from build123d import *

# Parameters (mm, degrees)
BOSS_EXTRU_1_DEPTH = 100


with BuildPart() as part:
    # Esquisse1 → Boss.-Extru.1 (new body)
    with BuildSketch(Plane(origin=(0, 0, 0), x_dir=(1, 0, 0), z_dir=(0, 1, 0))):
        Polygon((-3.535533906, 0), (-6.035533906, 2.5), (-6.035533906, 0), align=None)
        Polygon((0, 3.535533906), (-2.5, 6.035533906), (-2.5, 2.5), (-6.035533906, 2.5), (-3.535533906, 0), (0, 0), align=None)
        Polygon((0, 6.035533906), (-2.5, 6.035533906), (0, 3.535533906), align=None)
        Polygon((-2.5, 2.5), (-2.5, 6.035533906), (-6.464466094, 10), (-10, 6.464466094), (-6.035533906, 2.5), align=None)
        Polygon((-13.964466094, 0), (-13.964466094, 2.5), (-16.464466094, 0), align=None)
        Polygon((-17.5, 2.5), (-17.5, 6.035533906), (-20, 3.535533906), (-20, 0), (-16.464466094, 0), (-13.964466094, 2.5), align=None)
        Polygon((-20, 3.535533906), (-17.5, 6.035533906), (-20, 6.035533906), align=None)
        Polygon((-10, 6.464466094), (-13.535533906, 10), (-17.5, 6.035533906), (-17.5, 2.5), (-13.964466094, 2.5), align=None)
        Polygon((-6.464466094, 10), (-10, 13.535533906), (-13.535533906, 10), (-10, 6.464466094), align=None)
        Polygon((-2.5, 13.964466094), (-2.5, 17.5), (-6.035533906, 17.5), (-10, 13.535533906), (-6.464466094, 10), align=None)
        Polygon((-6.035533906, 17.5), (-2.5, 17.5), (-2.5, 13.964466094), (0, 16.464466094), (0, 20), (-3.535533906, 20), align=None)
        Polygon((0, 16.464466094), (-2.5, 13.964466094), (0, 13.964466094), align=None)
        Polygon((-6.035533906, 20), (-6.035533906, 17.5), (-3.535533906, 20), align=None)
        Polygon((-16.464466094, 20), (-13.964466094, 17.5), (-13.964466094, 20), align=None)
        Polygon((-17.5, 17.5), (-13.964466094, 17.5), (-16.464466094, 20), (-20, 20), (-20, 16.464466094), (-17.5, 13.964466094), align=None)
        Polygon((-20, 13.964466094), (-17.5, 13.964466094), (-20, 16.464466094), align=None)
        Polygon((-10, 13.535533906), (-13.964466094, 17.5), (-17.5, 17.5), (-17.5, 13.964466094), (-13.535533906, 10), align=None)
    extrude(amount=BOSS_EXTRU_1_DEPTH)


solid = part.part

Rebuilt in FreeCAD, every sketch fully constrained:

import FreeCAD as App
import Part
import Sketcher

V = App.Vector


def add_polygon(sketch, points):
    """Adds a closed chain of lines whose ends are joined by coincident constraints."""
    first, n = sketch.GeometryCount, len(points)
    for a, b in zip(points, points[1:] + points[:1]):
        sketch.addGeometry(Part.LineSegment(App.Vector(*a, 0), App.Vector(*b, 0)), False)
    for i in range(n):
        sketch.addConstraint(Sketcher.Constraint("Coincident", first + i, 2, first + (i + 1) % n, 1))

doc = App.newDocument("Part")
body = doc.addObject("PartDesign::Body", "Body")

sketch1 = body.newObject("Sketcher::SketchObject", "Sketch")
sketch1.AttachmentSupport = (doc.getObject("XZ_Plane"), [""])
sketch1.MapMode = "FlatFace"
add_polygon(sketch1, [(-6.035534, -2.5), (-6.035534, 0), (0, 0), (0, -6.035534), (-2.5, -6.035534), (-6.464466, -10), (-2.5, -13.964466), (0, -13.964466), (0, -20), (-6.035534, -20), (-6.035534, -17.5), (-10, -13.535534), (-13.964466, -17.5), (-13.964466, -20), (-20, -20), (-20, -13.964466), (-17.5, -13.964466), (-13.535534, -10), (-17.5, -6.035534), (-20, -6.035534), (-20, 0), (-13.964466, 0), (-13.964466, -2.5), (-10, -6.464466)])
sketch1.addConstraint(Sketcher.Constraint("Vertical", 0))
sketch1.addConstraint(Sketcher.Constraint("Horizontal", 1))
sketch1.addConstraint(Sketcher.Constraint("Vertical", 2))
sketch1.addConstraint(Sketcher.Constraint("Horizontal", 3))
sketch1.addConstraint(Sketcher.Constraint("Horizontal", 6))
sketch1.addConstraint(Sketcher.Constraint("Vertical", 7))
sketch1.addConstraint(Sketcher.Constraint("Horizontal", 8))
sketch1.addConstraint(Sketcher.Constraint("Vertical", 9))
sketch1.addConstraint(Sketcher.Constraint("Vertical", 12))
sketch1.addConstraint(Sketcher.Constraint("Horizontal", 13))
sketch1.addConstraint(Sketcher.Constraint("Vertical", 14))
sketch1.addConstraint(Sketcher.Constraint("Horizontal", 15))
sketch1.addConstraint(Sketcher.Constraint("Horizontal", 18))
sketch1.addConstraint(Sketcher.Constraint("Vertical", 19))
sketch1.addConstraint(Sketcher.Constraint("Horizontal", 20))
sketch1.addConstraint(Sketcher.Constraint("Vertical", 21))
sketch1.addConstraint(Sketcher.Constraint("Coincident", 1, 2, -1, 1))
sketch1.addConstraint(Sketcher.Constraint("PointOnObject", 6, 2, -2))
sketch1.addConstraint(Sketcher.Constraint("PointOnObject", 19, 2, -1))
sketch1.addConstraint(Sketcher.Constraint("Perpendicular", 4, 5))
sketch1.addConstraint(Sketcher.Constraint("Parallel", 5, 10))
sketch1.addConstraint(Sketcher.Constraint("Perpendicular", 10, 11))
sketch1.addConstraint(Sketcher.Constraint("Parallel", 11, 16))
sketch1.addConstraint(Sketcher.Constraint("Perpendicular", 16, 17))
sketch1.addConstraint(Sketcher.Constraint("Parallel", 17, 22))
sketch1.addConstraint(Sketcher.Constraint("Perpendicular", 22, 23))
sketch1.addConstraint(Sketcher.Constraint("Horizontal", 9, 2, 11, 2))
sketch1.addConstraint(Sketcher.Constraint("Horizontal", 8, 2, 12, 2))
sketch1.addConstraint(Sketcher.Constraint("Horizontal", 6, 2, 14, 2))
sketch1.addConstraint(Sketcher.Constraint("Horizontal", 4, 2, 16, 2))
sketch1.addConstraint(Sketcher.Constraint("Horizontal", 3, 2, 17, 2))
sketch1.addConstraint(Sketcher.Constraint("Horizontal", 21, 2, 23, 2))
sketch1.addConstraint(Sketcher.Constraint("Vertical", 3, 2, 5, 2))
sketch1.addConstraint(Sketcher.Constraint("Vertical", 0, 2, 8, 2))
sketch1.addConstraint(Sketcher.Constraint("Vertical", 15, 2, 17, 2))
sketch1.addConstraint(Sketcher.Constraint("Vertical", 14, 2, 18, 2))
sketch1.addConstraint(Sketcher.Constraint("Vertical", 12, 2, 20, 2))
sketch1.addConstraint(Sketcher.Constraint("Equal", 8, 13))
sketch1.addConstraint(Sketcher.Constraint("Equal", 6, 15))
sketch1.addConstraint(Sketcher.Constraint("Equal", 18, 0))
sketch1.addConstraint(Sketcher.Constraint("Equal", 20, 2))
sketch1.addConstraint(Sketcher.Constraint("Equal", 2, 7))
sketch1.addConstraint(Sketcher.Constraint("Equal", 0, 9))
sketch1.addConstraint(Sketcher.Constraint("Equal", 5, 10))
sketch1.addConstraint(Sketcher.Constraint("DistanceX", 3, 2, 3, 1, 2.5))
sketch1.addConstraint(Sketcher.Constraint("DistanceY", 4, 2, -1, 1, 10.0))
sketch1.addConstraint(Sketcher.Constraint("Distance", 4, 5.606602))
pad1 = body.newObject("PartDesign::Pad", "Pad")
pad1.Profile = sketch1
pad1.Length = 100
pad1.Reversed = True

doc.recompute()
